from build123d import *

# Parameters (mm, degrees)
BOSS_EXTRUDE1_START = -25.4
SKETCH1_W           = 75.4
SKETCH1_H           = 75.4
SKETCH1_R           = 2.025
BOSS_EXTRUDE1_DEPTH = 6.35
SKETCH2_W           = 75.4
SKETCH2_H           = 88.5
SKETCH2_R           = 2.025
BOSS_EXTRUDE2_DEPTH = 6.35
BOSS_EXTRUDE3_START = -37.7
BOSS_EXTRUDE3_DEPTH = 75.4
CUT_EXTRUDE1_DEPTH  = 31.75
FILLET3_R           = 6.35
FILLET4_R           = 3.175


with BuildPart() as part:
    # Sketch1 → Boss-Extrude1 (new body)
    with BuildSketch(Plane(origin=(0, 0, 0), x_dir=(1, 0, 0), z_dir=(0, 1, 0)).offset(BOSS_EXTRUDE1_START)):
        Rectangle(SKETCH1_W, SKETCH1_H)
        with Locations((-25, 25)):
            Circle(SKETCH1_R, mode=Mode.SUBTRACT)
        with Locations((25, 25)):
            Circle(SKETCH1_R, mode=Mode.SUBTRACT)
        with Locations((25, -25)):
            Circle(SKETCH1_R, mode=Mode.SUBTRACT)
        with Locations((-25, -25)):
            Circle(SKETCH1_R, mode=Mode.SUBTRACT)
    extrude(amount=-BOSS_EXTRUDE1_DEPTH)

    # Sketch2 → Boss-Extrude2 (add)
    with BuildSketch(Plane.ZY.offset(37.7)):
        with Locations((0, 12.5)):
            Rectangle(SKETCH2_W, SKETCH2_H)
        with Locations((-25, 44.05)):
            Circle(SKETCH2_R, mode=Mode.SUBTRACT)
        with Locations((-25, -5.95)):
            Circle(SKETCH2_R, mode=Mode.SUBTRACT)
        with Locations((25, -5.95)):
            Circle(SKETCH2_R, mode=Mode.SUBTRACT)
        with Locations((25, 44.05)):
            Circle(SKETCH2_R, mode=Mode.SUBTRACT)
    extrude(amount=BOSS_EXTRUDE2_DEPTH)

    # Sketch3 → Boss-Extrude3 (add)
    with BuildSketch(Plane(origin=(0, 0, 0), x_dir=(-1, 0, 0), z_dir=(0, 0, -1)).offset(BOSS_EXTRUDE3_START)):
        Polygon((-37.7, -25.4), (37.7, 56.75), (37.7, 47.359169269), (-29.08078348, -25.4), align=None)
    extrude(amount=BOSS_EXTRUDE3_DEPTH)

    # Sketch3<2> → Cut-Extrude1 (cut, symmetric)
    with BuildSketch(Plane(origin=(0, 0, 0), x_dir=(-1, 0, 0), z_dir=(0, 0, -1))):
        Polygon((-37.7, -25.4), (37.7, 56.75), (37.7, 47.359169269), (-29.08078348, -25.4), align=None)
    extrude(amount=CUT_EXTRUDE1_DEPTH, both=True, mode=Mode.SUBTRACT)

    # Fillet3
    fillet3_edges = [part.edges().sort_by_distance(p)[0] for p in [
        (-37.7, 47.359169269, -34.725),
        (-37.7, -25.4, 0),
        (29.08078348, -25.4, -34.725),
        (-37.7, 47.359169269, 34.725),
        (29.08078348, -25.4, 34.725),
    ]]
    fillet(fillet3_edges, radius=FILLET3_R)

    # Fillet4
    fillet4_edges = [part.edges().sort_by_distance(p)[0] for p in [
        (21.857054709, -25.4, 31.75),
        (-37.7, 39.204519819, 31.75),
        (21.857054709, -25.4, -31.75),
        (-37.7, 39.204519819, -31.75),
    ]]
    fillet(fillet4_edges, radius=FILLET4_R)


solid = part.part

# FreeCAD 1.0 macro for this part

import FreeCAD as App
import Part
import Sketcher

V = App.Vector
Q = App.Units.Quantity


def edges_at(feature, points):
    """Names of the edges that pass closest to the given points."""
    edges = feature.Shape.Edges
    near = lambda p: min(range(len(edges)), key=lambda i: edges[i].distToShape(Part.Vertex(*p))[0])
    return sorted({f"Edge{near(p) + 1}" for p in points})

doc = App.newDocument("Part")
body = doc.addObject("PartDesign::Body", "Body")

# Sketch on XZ plane
sketch1 = body.newObject("Sketcher::SketchObject", "Sketch")
sketch1.AttachmentSupport = (doc.getObject("XZ_Plane"), [""])
sketch1.MapMode = "FlatFace"
sketch1.AttachmentOffset = App.Placement(V(0, 0, 1 * 25.4), App.Rotation())
sketch1.addGeometry([
    Part.LineSegment(V(-37.7, -37.7, 0), V(-37.7, 37.7, 0)),  # 0
    Part.LineSegment(V(-37.7, 37.7, 0), V(37.7, 37.7, 0)),  # 1
    Part.LineSegment(V(37.7, 37.7, 0), V(37.7, -37.7, 0)),  # 2
    Part.LineSegment(V(37.7, -37.7, 0), V(-37.7, -37.7, 0)),  # 3
    Part.Circle(V(-25, 25, 0), V(0, 0, 1), 2),  # 4
    Part.Circle(V(25, 25, 0), V(0, 0, 1), 2),  # 5
    Part.Circle(V(-25, -25, 0), V(0, 0, 1), 2),  # 6
    Part.Circle(V(25, -25, 0), V(0, 0, 1), 2),  # 7
], False)
sketch1.addConstraint([
    Sketcher.Constraint("Coincident", 0, 2, 1, 1),
    Sketcher.Constraint("Coincident", 1, 2, 2, 1),
    Sketcher.Constraint("Coincident", 2, 2, 3, 1),
    Sketcher.Constraint("Coincident", 3, 2, 0, 1),
    Sketcher.Constraint("Vertical", 0),
    Sketcher.Constraint("Horizontal", 1),
    Sketcher.Constraint("Vertical", 2),
    Sketcher.Constraint("Horizontal", 3),
    Sketcher.Constraint("Equal", 4, 5),
    Sketcher.Constraint("Equal", 5, 6),
    Sketcher.Constraint("Equal", 6, 7),
    Sketcher.Constraint("Symmetric", 5, 3, 6, 3, -1, 1),
    Sketcher.Constraint("Symmetric", 4, 3, 7, 3, -1, 1),
    Sketcher.Constraint("Symmetric", 0, 2, 2, 2, -1, 1),
    Sketcher.Constraint("Symmetric", 4, 3, 5, 3, -2),
    Sketcher.Constraint("Equal", 3, 0),
    Sketcher.Constraint("DistanceX", 0, 2, 4, 3, Q("0.5 in")),
    Sketcher.Constraint("DistanceY", 4, 3, 0, 2, Q("0.5 in")),
    Sketcher.Constraint("Diameter", 4, Q("4.05 mm")),
    Sketcher.Constraint("DistanceX", 1, 1, 1, 2, Q("75.4 mm")),
])
pad1 = body.newObject("PartDesign::Pad", "Pad")
pad1.Profile = sketch1
pad1.Length = Q("0.25 in")

# Sketch on YZ plane
sketch2 = body.newObject("Sketcher::SketchObject", "Sketch001")
sketch2.AttachmentSupport = (doc.getObject("YZ_Plane"), [""])
sketch2.MapMode = "FlatFace"
sketch2.AttachmentOffset = App.Placement(V(0, 0, -37.7), App.Rotation())
sketch2.addGeometry([
    Part.LineSegment(V(56.8, -37.7, 0), V(-31.8, -37.7, 0)),  # 0
    Part.LineSegment(V(-31.8, -37.7, 0), V(-31.8, 37.7, 0)),  # 1
    Part.LineSegment(V(-31.8, 37.7, 0), V(56.8, 37.7, 0)),  # 2
    Part.LineSegment(V(56.8, 37.7, 0), V(56.8, -37.7, 0)),  # 3
    Part.Circle(V(-6, -25, 0), V(0, 0, 1), 2),  # 4
    Part.Circle(V(-6, 25, 0), V(0, 0, 1), 2),  # 5
    Part.Circle(V(44, -25, 0), V(0, 0, 1), 2),  # 6
    Part.Circle(V(44, 25, 0), V(0, 0, 1), 2),  # 7
], False)
sketch2.addConstraint([
    Sketcher.Constraint("Coincident", 0, 2, 1, 1),
    Sketcher.Constraint("Coincident", 1, 2, 2, 1),
    Sketcher.Constraint("Coincident", 2, 2, 3, 1),
    Sketcher.Constraint("Coincident", 3, 2, 0, 1),
    Sketcher.Constraint("Horizontal", 0),
    Sketcher.Constraint("Vertical", 1),
    Sketcher.Constraint("Horizontal", 2),
    Sketcher.Constraint("Vertical", 3),
    Sketcher.Constraint("Equal", 4, 5),
    Sketcher.Constraint("Equal", 5, 6),
    Sketcher.Constraint("Equal", 6, 7),
    Sketcher.Constraint("Symmetric", 4, 3, 5, 3, -1),
    Sketcher.Constraint("Symmetric", 6, 3, 7, 3, -1),
    Sketcher.Constraint("Horizontal", 4, 3, 6, 3),
    Sketcher.Constraint("DistanceY", 0, 2, 4, 3, Q("0.5 in")),
    Sketcher.Constraint("DistanceY", 5, 3, 1, 2, Q("0.5 in")),
    Sketcher.Constraint("DistanceX", 7, 3, 2, 2, Q("0.5 in")),
    Sketcher.Constraint("Diameter", 4, Q("4.05 mm")),
    Sketcher.Constraint("DistanceX", 0, 2, -1, 1, Q("1.25 in")),
    Sketcher.Constraint("DistanceX", 0, 2, 0, 1, Q("88.5 mm")),
    Sketcher.Constraint("DistanceY", 1, 1, 1, 2, Q("75.4 mm")),
    Sketcher.Constraint("DistanceX", 4, 3, -1, 1, Q("5.95 mm")),
])
pad2 = body.newObject("PartDesign::Pad", "Pad001")
pad2.Profile = sketch2
pad2.Length = Q("0.25 in")
pad2.Reversed = True

# Sketch on XY plane
sketch3 = body.newObject("Sketcher::SketchObject", "Sketch002")
sketch3.AttachmentSupport = (doc.getObject("XY_Plane"), [""])
sketch3.MapMode = "FlatFace"
sketch3.AttachmentOffset = App.Placement(V(0, 0, 37.7), App.Rotation())
sketch3.addGeometry([
    Part.LineSegment(V(-38, 57, 0), V(38, -25, 0)),
    Part.LineSegment(V(38, -25, 0), V(29, -25, 0)),
    Part.LineSegment(V(29, -25, 0), V(-38, 47, 0)),
    Part.LineSegment(V(-38, 47, 0), V(-38, 57, 0)),
], False)
sketch3.addConstraint([
    Sketcher.Constraint("Coincident", 0, 2, 1, 1),
    Sketcher.Constraint("Coincident", 1, 2, 2, 1),
    Sketcher.Constraint("Coincident", 2, 2, 3, 1),
    Sketcher.Constraint("Coincident", 3, 2, 0, 1),
    Sketcher.Constraint("Horizontal", 1),
    Sketcher.Constraint("Vertical", 3),
    Sketcher.Constraint("Parallel", 0, 2),
    Sketcher.Constraint("DistanceY", 0, 2, -1, 1, Q("1 in")),
    Sketcher.Constraint("DistanceY", 3, 1, 3, 2, Q("9.390831 mm")),
    Sketcher.Constraint("DistanceX", -1, 1, 0, 2, Q("37.7 mm")),
    Sketcher.Constraint("DistanceX", 2, 2, -1, 1, Q("37.7 mm")),
    Sketcher.Constraint("DistanceY", -1, 1, 3, 2, Q("56.75 mm")),
])
pad3 = body.newObject("PartDesign::Pad", "Pad002")
pad3.Profile = sketch3
pad3.Length = 75.4
pad3.Reversed = True

# Sketch on XY plane
sketch4 = body.newObject("Sketcher::SketchObject", "Sketch003")
sketch4.AttachmentSupport = (doc.getObject("XY_Plane"), [""])
sketch4.MapMode = "FlatFace"
sketch4.addGeometry([
    Part.LineSegment(V(-38, 57, 0), V(38, -25, 0)),
    Part.LineSegment(V(38, -25, 0), V(29, -25, 0)),
    Part.LineSegment(V(29, -25, 0), V(-38, 47, 0)),
    Part.LineSegment(V(-38, 47, 0), V(-38, 57, 0)),
], False)
sketch4.addConstraint([
    Sketcher.Constraint("Coincident", 0, 2, 1, 1),
    Sketcher.Constraint("Coincident", 1, 2, 2, 1),
    Sketcher.Constraint("Coincident", 2, 2, 3, 1),
    Sketcher.Constraint("Coincident", 3, 2, 0, 1),
    Sketcher.Constraint("Horizontal", 1),
    Sketcher.Constraint("Vertical", 3),
    Sketcher.Constraint("Parallel", 0, 2),
    Sketcher.Constraint("DistanceY", 0, 2, -1, 1, Q("1 in")),
    Sketcher.Constraint("DistanceY", 3, 1, 3, 2, Q("9.390831 mm")),
    Sketcher.Constraint("DistanceX", -1, 1, 0, 2, Q("37.7 mm")),
    Sketcher.Constraint("DistanceX", 2, 2, -1, 1, Q("37.7 mm")),
    Sketcher.Constraint("DistanceY", -1, 1, 3, 2, Q("56.75 mm")),
])
pocket1 = body.newObject("PartDesign::Pocket", "Pocket")
pocket1.Profile = sketch4
pocket1.Length = Q("2.5 in")
pocket1.Midplane = True
doc.recompute()

fillet = body.newObject("PartDesign::Fillet", "Fillet")
fillet.Base = (pocket1, edges_at(pocket1, [
    (-37.7, 47.359, -34.725),
    (-37.7, -25.4, 0),
    (29.081, -25.4, -34.725),
    (-37.7, 47.359, 34.725),
    (29.081, -25.4, 34.725),
]))
fillet.Radius = Q("0.25 in")
doc.recompute()

fillet2 = body.newObject("PartDesign::Fillet", "Fillet001")
fillet2.Base = (fillet, edges_at(fillet, [
    (26.167, -25.4, 31.75),
    (-37.7, 43.9, 31.75),
    (26.167, -25.4, -31.75),
    (-37.7, 43.9, -31.75),
]))
fillet2.Radius = Q("0.125 in")

doc.recompute()
